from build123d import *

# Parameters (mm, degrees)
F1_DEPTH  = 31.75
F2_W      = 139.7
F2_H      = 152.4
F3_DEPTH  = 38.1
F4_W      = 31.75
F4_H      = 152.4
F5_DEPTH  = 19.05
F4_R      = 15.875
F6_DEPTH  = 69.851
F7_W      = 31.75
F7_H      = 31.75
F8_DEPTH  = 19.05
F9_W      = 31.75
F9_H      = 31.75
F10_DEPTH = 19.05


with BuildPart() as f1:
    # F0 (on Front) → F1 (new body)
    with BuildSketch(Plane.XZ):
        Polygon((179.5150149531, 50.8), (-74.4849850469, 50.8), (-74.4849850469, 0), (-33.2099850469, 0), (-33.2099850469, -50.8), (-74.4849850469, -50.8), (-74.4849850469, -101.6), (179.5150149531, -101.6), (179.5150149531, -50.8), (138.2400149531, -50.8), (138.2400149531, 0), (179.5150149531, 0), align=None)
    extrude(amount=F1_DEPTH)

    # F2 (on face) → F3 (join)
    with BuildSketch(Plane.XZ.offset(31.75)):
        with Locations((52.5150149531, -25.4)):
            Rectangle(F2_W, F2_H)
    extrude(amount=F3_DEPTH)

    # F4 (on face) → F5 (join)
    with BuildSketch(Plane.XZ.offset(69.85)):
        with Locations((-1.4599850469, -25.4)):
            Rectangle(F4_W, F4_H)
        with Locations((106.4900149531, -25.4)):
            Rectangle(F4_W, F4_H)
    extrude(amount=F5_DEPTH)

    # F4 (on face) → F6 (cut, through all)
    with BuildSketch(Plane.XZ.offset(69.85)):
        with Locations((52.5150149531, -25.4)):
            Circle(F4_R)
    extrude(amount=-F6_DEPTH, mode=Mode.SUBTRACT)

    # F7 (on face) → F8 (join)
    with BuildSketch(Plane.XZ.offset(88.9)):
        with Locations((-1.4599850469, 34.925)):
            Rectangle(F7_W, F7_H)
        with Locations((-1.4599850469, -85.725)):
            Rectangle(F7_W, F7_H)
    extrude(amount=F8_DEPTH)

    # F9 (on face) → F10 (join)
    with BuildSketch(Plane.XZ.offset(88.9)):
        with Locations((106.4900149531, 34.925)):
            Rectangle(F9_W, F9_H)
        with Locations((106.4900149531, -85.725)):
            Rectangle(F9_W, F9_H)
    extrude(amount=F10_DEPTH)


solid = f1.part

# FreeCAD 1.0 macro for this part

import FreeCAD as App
import Part
import Sketcher

V = App.Vector
Q = App.Units.Quantity

doc = App.newDocument("Part")
body = doc.addObject("PartDesign::Body", "Body")

# Sketch on XZ plane
sketch1 = body.newObject("Sketcher::SketchObject", "Sketch")
sketch1.AttachmentSupport = (doc.getObject("XZ_Plane"), [""])
sketch1.MapMode = "FlatFace"
sketch1.addGeometry([
    Part.LineSegment(V(180, 51, 0), V(-74, 51, 0)),  # 0
    Part.LineSegment(V(-74, 51, 0), V(-74, 0, 0)),  # 1
    Part.LineSegment(V(-74, 0, 0), V(-33, 0, 0)),  # 2
    Part.LineSegment(V(-33, 0, 0), V(-33, -51, 0)),  # 3
    Part.LineSegment(V(-33, -51, 0), V(-74, -51, 0)),  # 4
    Part.LineSegment(V(-74, -51, 0), V(-74, -102, 0)),  # 5
    Part.LineSegment(V(-74, -102, 0), V(180, -102, 0)),  # 6
    Part.LineSegment(V(180, -102, 0), V(180, -51, 0)),  # 7
    Part.LineSegment(V(180, -51, 0), V(138, -51, 0)),  # 8
    Part.LineSegment(V(138, -51, 0), V(138, 0, 0)),  # 9
    Part.LineSegment(V(138, 0, 0), V(180, 0, 0)),  # 10
    Part.LineSegment(V(180, 0, 0), V(180, 51, 0)),  # 11
], False)
sketch1.addConstraint([
    Sketcher.Constraint("Coincident", 0, 2, 1, 1),
    Sketcher.Constraint("Coincident", 1, 2, 2, 1),
    Sketcher.Constraint("Coincident", 2, 2, 3, 1),
    Sketcher.Constraint("Coincident", 3, 2, 4, 1),
    Sketcher.Constraint("Coincident", 4, 2, 5, 1),
    Sketcher.Constraint("Coincident", 5, 2, 6, 1),
    Sketcher.Constraint("Coincident", 6, 2, 7, 1),
    Sketcher.Constraint("Coincident", 7, 2, 8, 1),
    Sketcher.Constraint("Coincident", 8, 2, 9, 1),
    Sketcher.Constraint("Coincident", 9, 2, 10, 1),
    Sketcher.Constraint("Coincident", 10, 2, 11, 1),
    Sketcher.Constraint("Coincident", 11, 2, 0, 1),
    Sketcher.Constraint("Horizontal", 0),
    Sketcher.Constraint("Vertical", 1),
    Sketcher.Constraint("Horizontal", 2),
    Sketcher.Constraint("Vertical", 3),
    Sketcher.Constraint("Horizontal", 4),
    Sketcher.Constraint("Vertical", 5),
    Sketcher.Constraint("Horizontal", 6),
    Sketcher.Constraint("Vertical", 7),
    Sketcher.Constraint("Horizontal", 8),
    Sketcher.Constraint("Vertical", 9),
    Sketcher.Constraint("Horizontal", 10),
    Sketcher.Constraint("Vertical", 11),
    Sketcher.Constraint("Symmetric", 0, 2, 4, 2, -1),
    Sketcher.Constraint("Symmetric", 7, 2, 11, 2, -1),
    Sketcher.Constraint("PointOnObject", 1, 2, -1),
    Sketcher.Constraint("PointOnObject", 9, 2, -1),
    Sketcher.Constraint("Equal", 4, 8),
    Sketcher.Constraint("Equal", 3, 5),
    Sketcher.Constraint("DistanceX", 0, 2, 0, 1, Q("10 in")),
    Sketcher.Constraint("DistanceY", 1, 2, 1, 1, Q("2 in")),
    Sketcher.Constraint("DistanceX", 2, 1, 2, 2, Q("1.625 in")),
    Sketcher.Constraint("DistanceX", 0, 2, -1, 1, 74.484985),
])
pad1 = body.newObject("PartDesign::Pad", "Pad")
pad1.Profile = sketch1
pad1.Length = Q("1.25 in")

# Sketch on XZ plane
sketch2 = body.newObject("Sketcher::SketchObject", "Sketch001")
sketch2.AttachmentSupport = (doc.getObject("XZ_Plane"), [""])
sketch2.MapMode = "FlatFace"
sketch2.AttachmentOffset = App.Placement(V(0, 0, 1.25 * 25.4), App.Rotation())
sketch2.addGeometry([
    Part.LineSegment(V(-17, 51, 0), V(-17, -102, 0)),
    Part.LineSegment(V(-17, -102, 0), V(122, -102, 0)),
    Part.LineSegment(V(122, -102, 0), V(122, 51, 0)),
    Part.LineSegment(V(122, 51, 0), V(-17, 51, 0)),
], False)
sketch2.addConstraint([
    Sketcher.Constraint("Coincident", 0, 2, 1, 1),
    Sketcher.Constraint("Coincident", 1, 2, 2, 1),
    Sketcher.Constraint("Coincident", 2, 2, 3, 1),
    Sketcher.Constraint("Coincident", 3, 2, 0, 1),
    Sketcher.Constraint("Vertical", 0),
    Sketcher.Constraint("Horizontal", 1),
    Sketcher.Constraint("Vertical", 2),
    Sketcher.Constraint("Horizontal", 3),
    Sketcher.Constraint("DistanceY", 0, 2, 0, 1, Q("6 in")),
    Sketcher.Constraint("DistanceX", 1, 1, 1, 2, Q("5.5 in")),
    Sketcher.Constraint("DistanceY", 0, 2, -1, 1, Q("4 in")),
    Sketcher.Constraint("DistanceX", 0, 2, -1, 1, 17.334985),
])
pad2 = body.newObject("PartDesign::Pad", "Pad001")
pad2.Profile = sketch2
pad2.Length = Q("1.5 in")

# Sketch on XZ plane
sketch3 = body.newObject("Sketcher::SketchObject", "Sketch002")
sketch3.AttachmentSupport = (doc.getObject("XZ_Plane"), [""])
sketch3.MapMode = "FlatFace"
sketch3.AttachmentOffset = App.Placement(V(0, 0, 2.75 * 25.4), App.Rotation())
sketch3.addGeometry([
    Part.LineSegment(V(-17, 51, 0), V(-17, -102, 0)),  # 0
    Part.LineSegment(V(-17, -102, 0), V(14, -102, 0)),  # 1
    Part.LineSegment(V(14, -102, 0), V(14, 51, 0)),  # 2
    Part.LineSegment(V(14, 51, 0), V(-17, 51, 0)),  # 3
    Part.LineSegment(V(91, 51, 0), V(91, -102, 0)),  # 4
    Part.LineSegment(V(91, -102, 0), V(122, -102, 0)),  # 5
    Part.LineSegment(V(122, -102, 0), V(122, 51, 0)),  # 6
    Part.LineSegment(V(122, 51, 0), V(91, 51, 0)),  # 7
], False)
sketch3.addConstraint([
    Sketcher.Constraint("Coincident", 0, 2, 1, 1),
    Sketcher.Constraint("Coincident", 1, 2, 2, 1),
    Sketcher.Constraint("Coincident", 2, 2, 3, 1),
    Sketcher.Constraint("Coincident", 3, 2, 0, 1),
    Sketcher.Constraint("Coincident", 4, 2, 5, 1),
    Sketcher.Constraint("Coincident", 5, 2, 6, 1),
    Sketcher.Constraint("Coincident", 6, 2, 7, 1),
    Sketcher.Constraint("Coincident", 7, 2, 4, 1),
    Sketcher.Constraint("Vertical", 0),
    Sketcher.Constraint("Horizontal", 1),
    Sketcher.Constraint("Vertical", 2),
    Sketcher.Constraint("Horizontal", 3),
    Sketcher.Constraint("Vertical", 4),
    Sketcher.Constraint("Horizontal", 5),
    Sketcher.Constraint("Vertical", 6),
    Sketcher.Constraint("Horizontal", 7),
    Sketcher.Constraint("Horizontal", 1, 2, 4, 2),
    Sketcher.Constraint("Horizontal", 3, 2, 6, 2),
    Sketcher.Constraint("Equal", 3, 5),
    Sketcher.Constraint("DistanceY", 0, 2, 0, 1, Q("6 in")),
    Sketcher.Constraint("DistanceY", 0, 2, -1, 1, Q("4 in")),
    Sketcher.Constraint("DistanceX", 1, 2, 4, 2, Q("3 in")),
    Sketcher.Constraint("DistanceX", 1, 1, 1, 2, Q("1.25 in")),
    Sketcher.Constraint("DistanceX", 0, 2, -1, 1, 17.334985),
])
pad3 = body.newObject("PartDesign::Pad", "Pad002")
pad3.Profile = sketch3
pad3.Length = Q("0.75 in")

# Sketch on XZ plane
sketch4 = body.newObject("Sketcher::SketchObject", "Sketch003")
sketch4.AttachmentSupport = (doc.getObject("XZ_Plane"), [""])
sketch4.MapMode = "FlatFace"
sketch4.AttachmentOffset = App.Placement(V(0, 0, 2.75 * 25.4), App.Rotation())
sketch4.addGeometry(Part.Circle(V(53, -25, 0), V(0, 0, 1), 16), False)
sketch4.addConstraint([
    Sketcher.Constraint("Diameter", 0, Q("1.25 in")),
    Sketcher.Constraint("DistanceY", 0, 3, -1, 1, Q("1 in")),
    Sketcher.Constraint("DistanceX", -1, 1, 0, 3, 52.515015),
])
pocket1 = body.newObject("PartDesign::Pocket", "Pocket")
pocket1.Profile = sketch4
pocket1.Type = "ThroughAll"

# Sketch on XZ plane
sketch5 = body.newObject("Sketcher::SketchObject", "Sketch004")
sketch5.AttachmentSupport = (doc.getObject("XZ_Plane"), [""])
sketch5.MapMode = "FlatFace"
sketch5.AttachmentOffset = App.Placement(V(0, 0, 3.5 * 25.4), App.Rotation())
sketch5.addGeometry([
    Part.LineSegment(V(-17, 51, 0), V(-17, 19, 0)),  # 0
    Part.LineSegment(V(-17, 19, 0), V(14, 19, 0)),  # 1
    Part.LineSegment(V(14, 19, 0), V(14, 51, 0)),  # 2
    Part.LineSegment(V(14, 51, 0), V(-17, 51, 0)),  # 3
    Part.LineSegment(V(-17, -70, 0), V(-17, -102, 0)),  # 4
    Part.LineSegment(V(-17, -102, 0), V(14, -102, 0)),  # 5
    Part.LineSegment(V(14, -102, 0), V(14, -70, 0)),  # 6
    Part.LineSegment(V(14, -70, 0), V(-17, -70, 0)),  # 7
], False)
sketch5.addConstraint([
    Sketcher.Constraint("Coincident", 0, 2, 1, 1),
    Sketcher.Constraint("Coincident", 1, 2, 2, 1),
    Sketcher.Constraint("Coincident", 2, 2, 3, 1),
    Sketcher.Constraint("Coincident", 3, 2, 0, 1),
    Sketcher.Constraint("Coincident", 4, 2, 5, 1),
    Sketcher.Constraint("Coincident", 5, 2, 6, 1),
    Sketcher.Constraint("Coincident", 6, 2, 7, 1),
    Sketcher.Constraint("Coincident", 7, 2, 4, 1),
    Sketcher.Constraint("Vertical", 0),
    Sketcher.Constraint("Horizontal", 1),
    Sketcher.Constraint("Vertical", 2),
    Sketcher.Constraint("Horizontal", 3),
    Sketcher.Constraint("Vertical", 4),
    Sketcher.Constraint("Horizontal", 5),
    Sketcher.Constraint("Vertical", 6),
    Sketcher.Constraint("Horizontal", 7),
    Sketcher.Constraint("Vertical", 3, 2, 4, 2),
    Sketcher.Constraint("Vertical", 2, 2, 5, 2),
    Sketcher.Constraint("Equal", 7, 0),
    Sketcher.Constraint("Equal", 2, 4),
    Sketcher.Constraint("DistanceY", -1, 1, 2, 2, Q("2 in")),
    Sketcher.Constraint("DistanceY", 4, 2, -1, 1, Q("4 in")),
    Sketcher.Constraint("DistanceX", 1, 1, 1, 2, Q("1.25 in")),
    Sketcher.Constraint("DistanceX", 0, 2, -1, 1, 17.334985),
])
pad4 = body.newObject("PartDesign::Pad", "Pad003")
pad4.Profile = sketch5
pad4.Length = Q("0.75 in")

# Sketch on XZ plane
sketch6 = body.newObject("Sketcher::SketchObject", "Sketch005")
sketch6.AttachmentSupport = (doc.getObject("XZ_Plane"), [""])
sketch6.MapMode = "FlatFace"
sketch6.AttachmentOffset = App.Placement(V(0, 0, 3.5 * 25.4), App.Rotation())
sketch6.addGeometry([
    Part.LineSegment(V(91, 51, 0), V(91, 19, 0)),  # 0
    Part.LineSegment(V(91, 19, 0), V(122, 19, 0)),  # 1
    Part.LineSegment(V(122, 19, 0), V(122, 51, 0)),  # 2
    Part.LineSegment(V(122, 51, 0), V(91, 51, 0)),  # 3
    Part.LineSegment(V(91, -70, 0), V(91, -102, 0)),  # 4
    Part.LineSegment(V(91, -102, 0), V(122, -102, 0)),  # 5
    Part.LineSegment(V(122, -102, 0), V(122, -70, 0)),  # 6
    Part.LineSegment(V(122, -70, 0), V(91, -70, 0)),  # 7
], False)
sketch6.addConstraint([
    Sketcher.Constraint("Coincident", 0, 2, 1, 1),
    Sketcher.Constraint("Coincident", 1, 2, 2, 1),
    Sketcher.Constraint("Coincident", 2, 2, 3, 1),
    Sketcher.Constraint("Coincident", 3, 2, 0, 1),
    Sketcher.Constraint("Coincident", 4, 2, 5, 1),
    Sketcher.Constraint("Coincident", 5, 2, 6, 1),
    Sketcher.Constraint("Coincident", 6, 2, 7, 1),
    Sketcher.Constraint("Coincident", 7, 2, 4, 1),
    Sketcher.Constraint("Vertical", 0),
    Sketcher.Constraint("Horizontal", 1),
    Sketcher.Constraint("Vertical", 2),
    Sketcher.Constraint("Horizontal", 3),
    Sketcher.Constraint("Vertical", 4),
    Sketcher.Constraint("Horizontal", 5),
    Sketcher.Constraint("Vertical", 6),
    Sketcher.Constraint("Horizontal", 7),
    Sketcher.Constraint("Vertical", 3, 2, 4, 2),
    Sketcher.Constraint("Vertical", 2, 2, 5, 2),
    Sketcher.Constraint("Equal", 7, 0),
    Sketcher.Constraint("Equal", 2, 4),
    Sketcher.Constraint("DistanceY", -1, 1, 2, 2, Q("2 in")),
    Sketcher.Constraint("DistanceY", 4, 2, -1, 1, Q("4 in")),
    Sketcher.Constraint("DistanceX", 1, 1, 1, 2, Q("1.25 in")),
    Sketcher.Constraint("DistanceX", -1, 1, 0, 2, 90.615015),
])
pad5 = body.newObject("PartDesign::Pad", "Pad004")
pad5.Profile = sketch6
pad5.Length = Q("0.75 in")

doc.recompute()
